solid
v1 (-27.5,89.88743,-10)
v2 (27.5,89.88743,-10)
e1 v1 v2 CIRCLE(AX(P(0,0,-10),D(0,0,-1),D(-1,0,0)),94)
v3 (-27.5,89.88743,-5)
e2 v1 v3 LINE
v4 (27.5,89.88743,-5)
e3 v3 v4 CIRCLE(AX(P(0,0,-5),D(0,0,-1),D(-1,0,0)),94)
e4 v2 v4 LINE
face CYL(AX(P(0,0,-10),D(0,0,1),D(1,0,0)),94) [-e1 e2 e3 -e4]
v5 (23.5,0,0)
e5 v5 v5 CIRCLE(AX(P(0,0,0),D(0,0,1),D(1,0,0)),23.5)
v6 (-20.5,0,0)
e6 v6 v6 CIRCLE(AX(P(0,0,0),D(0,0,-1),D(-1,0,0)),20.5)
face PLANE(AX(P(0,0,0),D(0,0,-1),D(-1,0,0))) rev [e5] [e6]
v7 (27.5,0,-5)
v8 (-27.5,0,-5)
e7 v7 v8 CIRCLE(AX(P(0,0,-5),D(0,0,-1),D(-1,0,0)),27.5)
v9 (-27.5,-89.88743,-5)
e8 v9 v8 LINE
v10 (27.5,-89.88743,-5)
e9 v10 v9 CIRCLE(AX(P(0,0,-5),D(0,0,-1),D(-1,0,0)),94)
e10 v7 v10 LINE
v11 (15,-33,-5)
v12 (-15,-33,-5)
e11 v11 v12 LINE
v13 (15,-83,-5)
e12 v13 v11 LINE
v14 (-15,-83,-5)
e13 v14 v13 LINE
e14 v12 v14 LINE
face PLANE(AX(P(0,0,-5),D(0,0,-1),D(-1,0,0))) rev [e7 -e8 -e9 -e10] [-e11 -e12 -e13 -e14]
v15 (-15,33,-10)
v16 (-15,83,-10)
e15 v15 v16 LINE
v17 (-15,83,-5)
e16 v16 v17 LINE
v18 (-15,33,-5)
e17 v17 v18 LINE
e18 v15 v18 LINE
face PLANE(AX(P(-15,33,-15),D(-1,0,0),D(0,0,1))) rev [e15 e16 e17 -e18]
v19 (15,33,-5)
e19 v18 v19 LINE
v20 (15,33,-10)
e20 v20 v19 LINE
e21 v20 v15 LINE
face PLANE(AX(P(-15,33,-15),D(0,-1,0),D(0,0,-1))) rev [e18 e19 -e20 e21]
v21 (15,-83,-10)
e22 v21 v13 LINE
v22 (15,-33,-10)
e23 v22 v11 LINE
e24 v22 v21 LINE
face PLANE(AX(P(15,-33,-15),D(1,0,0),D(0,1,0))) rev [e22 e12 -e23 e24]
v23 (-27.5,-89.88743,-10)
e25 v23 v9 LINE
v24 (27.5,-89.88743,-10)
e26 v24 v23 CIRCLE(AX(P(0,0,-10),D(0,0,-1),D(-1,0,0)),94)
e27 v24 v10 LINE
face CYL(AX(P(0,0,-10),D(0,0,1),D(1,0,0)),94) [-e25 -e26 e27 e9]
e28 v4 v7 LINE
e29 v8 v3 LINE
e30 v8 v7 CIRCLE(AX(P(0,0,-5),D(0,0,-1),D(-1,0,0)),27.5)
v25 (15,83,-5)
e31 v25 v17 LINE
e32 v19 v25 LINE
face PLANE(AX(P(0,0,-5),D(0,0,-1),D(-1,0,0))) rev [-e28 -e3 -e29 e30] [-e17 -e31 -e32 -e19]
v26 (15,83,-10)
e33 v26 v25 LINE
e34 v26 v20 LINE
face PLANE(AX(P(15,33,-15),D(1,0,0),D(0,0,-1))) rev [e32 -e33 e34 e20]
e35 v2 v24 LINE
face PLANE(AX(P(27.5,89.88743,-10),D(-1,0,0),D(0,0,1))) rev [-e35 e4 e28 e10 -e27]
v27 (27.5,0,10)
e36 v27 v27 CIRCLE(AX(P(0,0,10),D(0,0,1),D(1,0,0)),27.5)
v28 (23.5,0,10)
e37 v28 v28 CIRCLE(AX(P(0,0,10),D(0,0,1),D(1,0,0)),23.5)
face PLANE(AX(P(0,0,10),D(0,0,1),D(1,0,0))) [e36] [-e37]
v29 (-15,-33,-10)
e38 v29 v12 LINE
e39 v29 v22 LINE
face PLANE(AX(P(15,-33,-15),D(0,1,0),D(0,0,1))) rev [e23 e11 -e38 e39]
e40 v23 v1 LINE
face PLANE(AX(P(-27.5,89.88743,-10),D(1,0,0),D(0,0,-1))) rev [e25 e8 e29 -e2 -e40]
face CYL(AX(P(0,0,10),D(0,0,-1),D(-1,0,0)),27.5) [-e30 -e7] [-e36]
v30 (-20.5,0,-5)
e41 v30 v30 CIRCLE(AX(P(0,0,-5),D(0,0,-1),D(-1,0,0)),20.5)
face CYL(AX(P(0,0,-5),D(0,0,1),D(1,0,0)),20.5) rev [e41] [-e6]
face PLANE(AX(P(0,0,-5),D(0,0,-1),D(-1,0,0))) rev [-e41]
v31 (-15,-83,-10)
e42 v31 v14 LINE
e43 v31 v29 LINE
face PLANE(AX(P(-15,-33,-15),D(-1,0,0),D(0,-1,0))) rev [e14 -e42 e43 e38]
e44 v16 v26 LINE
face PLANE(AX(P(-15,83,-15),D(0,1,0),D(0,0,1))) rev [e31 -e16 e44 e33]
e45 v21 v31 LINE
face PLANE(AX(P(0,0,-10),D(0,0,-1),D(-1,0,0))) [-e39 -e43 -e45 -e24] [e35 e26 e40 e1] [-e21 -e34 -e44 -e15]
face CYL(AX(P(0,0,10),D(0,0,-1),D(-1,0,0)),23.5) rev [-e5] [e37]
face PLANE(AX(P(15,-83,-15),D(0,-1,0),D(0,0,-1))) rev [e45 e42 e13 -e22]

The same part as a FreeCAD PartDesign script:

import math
import FreeCAD as App
import Part
import Sketcher

V = App.Vector


def add_polygon(sketch, points):
    """Adds a closed chain of lines whose ends are joined by coincident constraints."""
    first, n = sketch.GeometryCount, len(points)
    for a, b in zip(points, points[1:] + points[:1]):
        sketch.addGeometry(Part.LineSegment(App.Vector(*a, 0), App.Vector(*b, 0)), False)
    for i in range(n):
        sketch.addConstraint(Sketcher.Constraint("Coincident", first + i, 2, first + (i + 1) % n, 1))

doc = App.newDocument("Part")
params = doc.addObject("Spreadsheet::Sheet", "Params")
for row, (alias, value) in enumerate([
    ("sketch1_diameter", "55 mm"),
    ("sketch1_diameter2", "47 mm"),
    ("pad1_length", "10 mm"),
    ("sketch2_diameter", "55 mm"),
    ("sketch2_diameter2", "41 mm"),
    ("pad2_length", "5 mm"),
    ("sketch3_radius", "94 mm"),
    ("pad3_length", "5 mm"),
    ("sketch4_width", "30 mm"),
    ("sketch4_height", "50 mm"),
    ("pocket1_length", "10 mm"),
], start=1):
    params.set(f"A{row}", alias)
    params.set(f"B{row}", "=" + value)
    params.setAlias(f"B{row}", alias)

body = doc.addObject("PartDesign::Body", "Body")

# Sketch on XY plane
sketch1 = body.newObject("Sketcher::SketchObject", "Sketch")
sketch1.AttachmentSupport = (doc.getObject("XY_Plane"), [""])
sketch1.MapMode = "FlatFace"
sketch1.addGeometry([
    Part.Circle(V(0, 0, 0), V(0, 0, 1), 27.5),
    Part.Circle(V(0, 0, 0), V(0, 0, 1), 23.5),
], False)
sketch1.addConstraint([
    Sketcher.Constraint("Coincident", 0, 3, -1, 1),
    Sketcher.Constraint("Coincident", 1, 3, -1, 1),
    Sketcher.Constraint("Diameter", 0, 55.0),
    Sketcher.Constraint("Diameter", 1, 47.0),
])
sketch1.setExpression("Constraints[2]", "Params.sketch1_diameter")
sketch1.setExpression("Constraints[3]", "Params.sketch1_diameter2")
pad1 = body.newObject("PartDesign::Pad", "Pad")
pad1.Profile = sketch1
pad1.setExpression("Length", "Params.pad1_length")

# Sketch on XY plane
sketch2 = body.newObject("Sketcher::SketchObject", "Sketch001")
sketch2.AttachmentSupport = (doc.getObject("XY_Plane"), [""])
sketch2.MapMode = "FlatFace"
sketch2.addGeometry([
    Part.Circle(V(0, 0, 0), V(0, 0, 1), 27.5),
    Part.Circle(V(0, 0, 0), V(0, 0, 1), 20.5),
], False)
sketch2.addConstraint([
    Sketcher.Constraint("Coincident", 0, 3, -1, 1),
    Sketcher.Constraint("Coincident", 1, 3, -1, 1),
    Sketcher.Constraint("Diameter", 0, 55.0),
    Sketcher.Constraint("Diameter", 1, 41.0),
])
sketch2.setExpression("Constraints[2]", "Params.sketch2_diameter")
sketch2.setExpression("Constraints[3]", "Params.sketch2_diameter2")
pad2 = body.newObject("PartDesign::Pad", "Pad001")
pad2.Profile = sketch2
pad2.setExpression("Length", "Params.pad2_length")
pad2.Reversed = True

# Sketch on XY plane
sketch3 = body.newObject("Sketcher::SketchObject", "Sketch002")
sketch3.AttachmentSupport = (doc.getObject("XY_Plane"), [""])
sketch3.MapMode = "FlatFace"
sketch3.AttachmentOffset = App.Placement(V(0, 0, -5), App.Rotation())
sketch3.addGeometry([
    Part.LineSegment(V(27.5, 89.88743, 0), V(27.5, -89.88743, 0)),
    Part.ArcOfCircle(Part.Circle(V(0, 0, 0), V(0, 0, 1), 94), math.radians(-107.010874), math.radians(-72.989126)),
    Part.LineSegment(V(-27.5, -89.88743, 0), V(-27.5, 89.88743, 0)),
    Part.ArcOfCircle(Part.Circle(V(0, 0, 0), V(0, 0, 1), 94), math.radians(72.989126), math.radians(107.010874)),
], False)
sketch3.addConstraint([
    Sketcher.Constraint("Coincident", 0, 2, 1, 2),
    Sketcher.Constraint("Coincident", 1, 1, 2, 1),
    Sketcher.Constraint("Coincident", 2, 2, 3, 2),
    Sketcher.Constraint("Coincident", 3, 1, 0, 1),
    Sketcher.Constraint("Vertical", 0),
    Sketcher.Constraint("Vertical", 2),
    Sketcher.Constraint("Coincident", 1, 3, -1, 1),
    Sketcher.Constraint("Coincident", 3, 3, -1, 1),
    Sketcher.Constraint("Equal", 1, 3),
    Sketcher.Constraint("Horizontal", 0, 2, 1, 1),
    Sketcher.Constraint("Radius", 1, 94.0),
    Sketcher.Constraint("DistanceX", 1, 1, 0, 2, 55.0),
])
sketch3.setExpression("Constraints[10]", "Params.sketch3_radius")
pad3 = body.newObject("PartDesign::Pad", "Pad002")
pad3.Profile = sketch3
pad3.setExpression("Length", "Params.pad3_length")
pad3.Reversed = True

# Sketch on XY plane
sketch4 = body.newObject("Sketcher::SketchObject", "Sketch003")
sketch4.AttachmentSupport = (doc.getObject("XY_Plane"), [""])
sketch4.MapMode = "FlatFace"
sketch4.AttachmentOffset = App.Placement(V(0, 0, -5), App.Rotation())
add_polygon(sketch4, [(-15, -33), (-15, -83), (15, -83), (15, -33)])  # lines 0-3
add_polygon(sketch4, [(-15, 83), (-15, 33), (15, 33), (15, 83)])  # lines 4-7
sketch4.addConstraint([
    Sketcher.Constraint("Vertical", 0),
    Sketcher.Constraint("Horizontal", 1),
    Sketcher.Constraint("Vertical", 2),
    Sketcher.Constraint("Horizontal", 3),
    Sketcher.Constraint("Vertical", 4),
    Sketcher.Constraint("Horizontal", 5),
    Sketcher.Constraint("Vertical", 6),
    Sketcher.Constraint("Horizontal", 7),
    Sketcher.Constraint("Symmetric", 2, 2, 4, 2, -1, 1),
    Sketcher.Constraint("Symmetric", 0, 2, 6, 2, -1, 1),
    Sketcher.Constraint("Vertical", 3, 2, 4, 2),
    Sketcher.Constraint("DistanceX", 1, 1, 1, 2, 30.0),
    Sketcher.Constraint("DistanceY", 0, 2, 0, 1, 50.0),
    Sketcher.Constraint("DistanceY", 0, 2, -1, 1, 83.0),
])
sketch4.setExpression("Constraints[19]", "Params.sketch4_width")
sketch4.setExpression("Constraints[20]", "Params.sketch4_height")
pocket1 = body.newObject("PartDesign::Pocket", "Pocket")
pocket1.Profile = sketch4
pocket1.setExpression("Length", "Params.pocket1_length")

doc.recompute()
